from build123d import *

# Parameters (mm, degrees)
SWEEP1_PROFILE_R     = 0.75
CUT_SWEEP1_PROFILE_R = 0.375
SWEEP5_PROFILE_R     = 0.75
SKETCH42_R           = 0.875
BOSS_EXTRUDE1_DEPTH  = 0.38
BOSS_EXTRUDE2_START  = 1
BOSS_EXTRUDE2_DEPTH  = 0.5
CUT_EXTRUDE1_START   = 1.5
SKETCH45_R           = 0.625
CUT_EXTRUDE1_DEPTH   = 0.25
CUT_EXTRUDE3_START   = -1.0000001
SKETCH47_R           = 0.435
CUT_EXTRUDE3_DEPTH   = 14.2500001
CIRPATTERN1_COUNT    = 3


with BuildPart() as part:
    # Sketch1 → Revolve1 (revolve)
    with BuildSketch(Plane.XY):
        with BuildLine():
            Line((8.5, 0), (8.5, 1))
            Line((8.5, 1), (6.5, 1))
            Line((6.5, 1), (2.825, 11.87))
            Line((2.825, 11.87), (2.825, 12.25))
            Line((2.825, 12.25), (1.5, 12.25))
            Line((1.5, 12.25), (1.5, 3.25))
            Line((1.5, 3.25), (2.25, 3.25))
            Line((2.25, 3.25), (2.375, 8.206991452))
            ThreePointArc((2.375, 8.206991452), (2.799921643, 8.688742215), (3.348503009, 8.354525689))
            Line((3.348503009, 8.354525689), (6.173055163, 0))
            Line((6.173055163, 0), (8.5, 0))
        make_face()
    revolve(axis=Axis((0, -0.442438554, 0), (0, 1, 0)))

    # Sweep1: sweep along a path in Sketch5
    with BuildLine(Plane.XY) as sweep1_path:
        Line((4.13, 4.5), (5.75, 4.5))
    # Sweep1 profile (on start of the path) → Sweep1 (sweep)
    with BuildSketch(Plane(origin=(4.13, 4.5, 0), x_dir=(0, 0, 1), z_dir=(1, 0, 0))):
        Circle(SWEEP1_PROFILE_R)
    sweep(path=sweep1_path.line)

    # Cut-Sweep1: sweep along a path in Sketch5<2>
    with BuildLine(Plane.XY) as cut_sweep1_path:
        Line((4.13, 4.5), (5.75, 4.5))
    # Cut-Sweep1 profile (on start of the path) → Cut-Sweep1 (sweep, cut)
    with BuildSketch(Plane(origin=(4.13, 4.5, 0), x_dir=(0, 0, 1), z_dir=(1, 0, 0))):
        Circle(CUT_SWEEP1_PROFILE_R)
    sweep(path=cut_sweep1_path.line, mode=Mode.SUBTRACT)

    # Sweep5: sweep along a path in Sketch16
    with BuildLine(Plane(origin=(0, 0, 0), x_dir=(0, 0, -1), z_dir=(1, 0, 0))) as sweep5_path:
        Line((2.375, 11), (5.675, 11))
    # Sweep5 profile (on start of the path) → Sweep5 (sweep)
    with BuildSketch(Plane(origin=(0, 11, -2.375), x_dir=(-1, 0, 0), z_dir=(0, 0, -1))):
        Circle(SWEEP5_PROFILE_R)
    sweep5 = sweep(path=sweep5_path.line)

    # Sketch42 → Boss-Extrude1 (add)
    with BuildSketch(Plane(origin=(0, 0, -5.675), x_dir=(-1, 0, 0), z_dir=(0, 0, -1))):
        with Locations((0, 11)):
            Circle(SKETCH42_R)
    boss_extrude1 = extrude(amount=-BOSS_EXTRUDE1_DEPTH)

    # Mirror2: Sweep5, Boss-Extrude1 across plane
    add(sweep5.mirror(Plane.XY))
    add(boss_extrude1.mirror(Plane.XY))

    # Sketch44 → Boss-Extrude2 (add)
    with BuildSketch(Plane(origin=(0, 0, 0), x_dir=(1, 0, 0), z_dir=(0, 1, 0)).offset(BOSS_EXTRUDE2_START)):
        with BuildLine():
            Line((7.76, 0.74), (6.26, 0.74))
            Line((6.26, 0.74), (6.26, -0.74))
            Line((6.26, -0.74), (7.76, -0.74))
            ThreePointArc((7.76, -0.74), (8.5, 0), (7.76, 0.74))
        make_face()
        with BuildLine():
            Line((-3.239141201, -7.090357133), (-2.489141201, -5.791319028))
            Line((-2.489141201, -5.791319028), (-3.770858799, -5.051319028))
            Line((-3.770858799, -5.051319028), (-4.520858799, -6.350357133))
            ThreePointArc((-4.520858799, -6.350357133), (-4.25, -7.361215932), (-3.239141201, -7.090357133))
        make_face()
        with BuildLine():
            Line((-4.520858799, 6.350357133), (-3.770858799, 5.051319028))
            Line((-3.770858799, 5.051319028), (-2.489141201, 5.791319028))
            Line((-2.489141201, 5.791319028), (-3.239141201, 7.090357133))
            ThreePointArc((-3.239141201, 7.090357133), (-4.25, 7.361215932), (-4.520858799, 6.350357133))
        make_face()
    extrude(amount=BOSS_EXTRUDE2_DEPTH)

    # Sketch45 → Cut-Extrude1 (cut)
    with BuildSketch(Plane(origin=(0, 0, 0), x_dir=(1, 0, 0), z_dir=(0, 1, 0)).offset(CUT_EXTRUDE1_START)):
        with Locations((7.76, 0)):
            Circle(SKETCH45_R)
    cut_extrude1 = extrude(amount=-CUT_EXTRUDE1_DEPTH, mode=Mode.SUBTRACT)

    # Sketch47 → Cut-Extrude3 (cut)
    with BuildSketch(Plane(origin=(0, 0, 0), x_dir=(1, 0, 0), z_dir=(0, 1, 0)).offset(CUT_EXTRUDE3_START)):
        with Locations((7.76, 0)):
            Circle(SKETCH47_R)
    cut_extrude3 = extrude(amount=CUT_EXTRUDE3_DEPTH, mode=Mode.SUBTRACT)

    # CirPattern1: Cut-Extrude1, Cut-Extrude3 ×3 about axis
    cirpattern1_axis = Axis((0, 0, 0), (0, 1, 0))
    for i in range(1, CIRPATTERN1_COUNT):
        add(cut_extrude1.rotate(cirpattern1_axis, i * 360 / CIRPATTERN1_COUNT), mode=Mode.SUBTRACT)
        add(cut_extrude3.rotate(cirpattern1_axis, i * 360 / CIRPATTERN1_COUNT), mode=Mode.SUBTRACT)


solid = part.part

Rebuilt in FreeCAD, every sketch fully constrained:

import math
import FreeCAD as App
import Part
import Sketcher
Q = App.Units.Quantity

doc = App.newDocument("Part")
body = doc.addObject("PartDesign::Body", "Body")

# Sketch on XY plane
sketch1 = body.newObject("Sketcher::SketchObject", "Sketch")
sketch1.AttachmentSupport = (doc.getObject("XY_Plane"), [""])
sketch1.MapMode = "FlatFace"
sketch1.addGeometry(Part.LineSegment(App.Vector(8.5, 0, 0), App.Vector(8.5, 1, 0)), False)
sketch1.addGeometry(Part.LineSegment(App.Vector(8.5, 1, 0), App.Vector(6.5, 1, 0)), False)
sketch1.addGeometry(Part.LineSegment(App.Vector(6.5, 1, 0), App.Vector(2.83, 11.87, 0)), False)
sketch1.addGeometry(Part.LineSegment(App.Vector(2.83, 11.87, 0), App.Vector(2.83, 12.25, 0)), False)
sketch1.addGeometry(Part.LineSegment(App.Vector(2.83, 12.25, 0), App.Vector(1.5, 12.25, 0)), False)
sketch1.addGeometry(Part.LineSegment(App.Vector(1.5, 12.25, 0), App.Vector(1.5, 3.25, 0)), False)
sketch1.addGeometry(Part.LineSegment(App.Vector(1.5, 3.25, 0), App.Vector(2.25, 3.25, 0)), False)
sketch1.addGeometry(Part.LineSegment(App.Vector(2.25, 3.25, 0), App.Vector(2.38, 8.21, 0)), False)
sketch1.addGeometry(Part.ArcOfCircle(Part.Circle(App.Vector(2.87, 8.19, 0), App.Vector(0, 0, 1), 0.5), math.radians(19), math.radians(179)), False)
sketch1.addGeometry(Part.LineSegment(App.Vector(3.35, 8.35, 0), App.Vector(6.17, 0, 0)), False)
sketch1.addGeometry(Part.LineSegment(App.Vector(6.17, 0, 0), App.Vector(8.5, 0, 0)), False)
sketch1.addConstraint(Sketcher.Constraint("Coincident", 0, 2, 1, 1))
sketch1.addConstraint(Sketcher.Constraint("Coincident", 1, 2, 2, 1))
sketch1.addConstraint(Sketcher.Constraint("Coincident", 2, 2, 3, 1))
sketch1.addConstraint(Sketcher.Constraint("Coincident", 3, 2, 4, 1))
sketch1.addConstraint(Sketcher.Constraint("Coincident", 4, 2, 5, 1))
sketch1.addConstraint(Sketcher.Constraint("Coincident", 5, 2, 6, 1))
sketch1.addConstraint(Sketcher.Constraint("Coincident", 6, 2, 7, 1))
sketch1.addConstraint(Sketcher.Constraint("Tangent", 7, 2, 8, 2))
sketch1.addConstraint(Sketcher.Constraint("Tangent", 8, 1, 9, 1))
sketch1.addConstraint(Sketcher.Constraint("Coincident", 9, 2, 10, 1))
sketch1.addConstraint(Sketcher.Constraint("Coincident", 10, 2, 0, 1))
sketch1.addConstraint(Sketcher.Constraint("Vertical", 0))
sketch1.addConstraint(Sketcher.Constraint("Horizontal", 1))
sketch1.addConstraint(Sketcher.Constraint("Vertical", 3))
sketch1.addConstraint(Sketcher.Constraint("Horizontal", 4))
sketch1.addConstraint(Sketcher.Constraint("Vertical", 5))
sketch1.addConstraint(Sketcher.Constraint("Horizontal", 6))
sketch1.addConstraint(Sketcher.Constraint("Horizontal", 10))
sketch1.addConstraint(Sketcher.Constraint("PointOnObject", 9, 2, -1))
sketch1.addConstraint(Sketcher.Constraint("Parallel", 2, 9))
sketch1.addConstraint(Sketcher.Constraint("Radius", 8, Q("0.5 mm")))
sketch1.addConstraint(Sketcher.Constraint("DistanceX", 1, 2, 1, 1, Q("2 mm")))
sketch1.addConstraint(Sketcher.Constraint("DistanceY", 0, 1, 0, 2, Q("1 mm")))
sketch1.addConstraint(Sketcher.Constraint("DistanceY", 5, 2, 5, 1, Q("9 mm")))
sketch1.addConstraint(Sketcher.Constraint("DistanceX", 4, 2, 1, 2, Q("5 mm")))
sketch1.addConstraint(Sketcher.Constraint("DistanceX", 6, 1, 6, 2, Q("0.75 mm")))
sketch1.addConstraint(Sketcher.Constraint("DistanceY", 3, 1, 3, 2, Q("0.38 mm")))
sketch1.addConstraint(Sketcher.Constraint("DistanceX", -1, 1, 0, 2, Q("8.5 mm")))
sketch1.addConstraint(Sketcher.Constraint("DistanceX", 4, 2, 4, 1, Q("1.325 mm")))
sketch1.addConstraint(Sketcher.Constraint("DistanceY", -1, 1, 2, 2, Q("11.87 mm")))
sketch1.addConstraint(Sketcher.Constraint("DistanceX", 7, 2, 2, 2, Q("0.45 mm")))
sketch1.addConstraint(Sketcher.Constraint("Distance", 9, Q("8.819081 mm")))
revolution = body.newObject("PartDesign::Revolution", "Revolution")
revolution.Profile = sketch1
revolution.ReferenceAxis = (sketch1, ["V_Axis"])
revolution.Angle = 360

# Sketch on YZ plane
sketch2 = body.newObject("Sketcher::SketchObject", "Sketch001")
sketch2.AttachmentSupport = (doc.getObject("YZ_Plane"), [""])
sketch2.MapMode = "FlatFace"
sketch2.AttachmentOffset = App.Placement(App.Vector(0, 0, 4.13), App.Rotation())
sketch2.addGeometry(Part.Circle(App.Vector(4.5, 0, 0), App.Vector(0, 0, 1), 0.8), False)
sketch2.addConstraint(Sketcher.Constraint("PointOnObject", 0, 3, -1))
sketch2.addConstraint(Sketcher.Constraint("Diameter", 0, Q("1.5 mm")))
sketch2.addConstraint(Sketcher.Constraint("DistanceX", -1, 1, 0, 3, Q("4.5 mm")))

# Sketch on XY plane
sketch3 = body.newObject("Sketcher::SketchObject", "Sketch002")
sketch3.AttachmentSupport = (doc.getObject("XY_Plane"), [""])
sketch3.MapMode = "FlatFace"
sketch3.addGeometry(Part.LineSegment(App.Vector(4.1, 4.5, 0), App.Vector(5.8, 4.5, 0)), False)
sketch3.addConstraint(Sketcher.Constraint("Horizontal", 0))
sketch3.addConstraint(Sketcher.Constraint("DistanceX", 0, 1, 0, 2, Q("1.62 mm")))
sketch3.addConstraint(Sketcher.Constraint("DistanceY", -1, 1, 0, 1, Q("4.5 mm")))
sketch3.addConstraint(Sketcher.Constraint("DistanceX", -1, 1, 0, 1, Q("4.13 mm")))
doc.recompute()

additivepipe = body.newObject("PartDesign::AdditivePipe", "AdditivePipe")
additivepipe.Profile = sketch2
additivepipe.Spine = (sketch3, ["Edge1"])

# Sketch on YZ plane
sketch4 = body.newObject("Sketcher::SketchObject", "Sketch003")
sketch4.AttachmentSupport = (doc.getObject("YZ_Plane"), [""])
sketch4.MapMode = "FlatFace"
sketch4.AttachmentOffset = App.Placement(App.Vector(0, 0, 4.13), App.Rotation())
sketch4.addGeometry(Part.Circle(App.Vector(4.5, 0, 0), App.Vector(0, 0, 1), 0.38), False)
sketch4.addConstraint(Sketcher.Constraint("PointOnObject", 0, 3, -1))
sketch4.addConstraint(Sketcher.Constraint("Diameter", 0, Q("0.75 mm")))
sketch4.addConstraint(Sketcher.Constraint("DistanceX", -1, 1, 0, 3, Q("4.5 mm")))

# Sketch on XY plane
sketch5 = body.newObject("Sketcher::SketchObject", "Sketch004")
sketch5.AttachmentSupport = (doc.getObject("XY_Plane"), [""])
sketch5.MapMode = "FlatFace"
sketch5.addGeometry(Part.LineSegment(App.Vector(4.1, 4.5, 0), App.Vector(5.8, 4.5, 0)), False)
sketch5.addConstraint(Sketcher.Constraint("Horizontal", 0))
sketch5.addConstraint(Sketcher.Constraint("DistanceX", 0, 1, 0, 2, Q("1.62 mm")))
sketch5.addConstraint(Sketcher.Constraint("DistanceY", -1, 1, 0, 1, Q("4.5 mm")))
sketch5.addConstraint(Sketcher.Constraint("DistanceX", -1, 1, 0, 1, Q("4.13 mm")))
doc.recompute()

subtractivepipe = body.newObject("PartDesign::SubtractivePipe", "SubtractivePipe")
subtractivepipe.Profile = sketch4
subtractivepipe.Spine = (sketch5, ["Edge1"])

# Sketch on XY plane
sketch6 = body.newObject("Sketcher::SketchObject", "Sketch005")
sketch6.AttachmentSupport = (doc.getObject("XY_Plane"), [""])
sketch6.MapMode = "FlatFace"
sketch6.AttachmentOffset = App.Placement(App.Vector(0, 0, -2.375), App.Rotation())
sketch6.addGeometry(Part.Circle(App.Vector(0, 11, 0), App.Vector(0, 0, 1), 0.8), False)
sketch6.addConstraint(Sketcher.Constraint("PointOnObject", 0, 3, -2))
sketch6.addConstraint(Sketcher.Constraint("Diameter", 0, Q("1.5 mm")))
sketch6.addConstraint(Sketcher.Constraint("DistanceY", -1, 1, 0, 3, Q("11 mm")))

# Sketch on XZ plane
sketch7 = body.newObject("Sketcher::SketchObject", "Sketch006")
sketch7.AttachmentSupport = (doc.getObject("XZ_Plane"), [""])
sketch7.MapMode = "FlatFace"
sketch7.AttachmentOffset = App.Placement(App.Vector(0, 0, -11), App.Rotation())
sketch7.addGeometry(Part.LineSegment(App.Vector(0, -2.4, 0), App.Vector(0, -5.7, 0)), False)
sketch7.addConstraint(Sketcher.Constraint("Vertical", 0))
sketch7.addConstraint(Sketcher.Constraint("PointOnObject", 0, 1, -2))
sketch7.addConstraint(Sketcher.Constraint("DistanceY", 0, 2, 0, 1, Q("3.3 mm")))
sketch7.addConstraint(Sketcher.Constraint("DistanceY", 0, 1, -1, 1, Q("2.375 mm")))
doc.recompute()

additivepipe2 = body.newObject("PartDesign::AdditivePipe", "AdditivePipe001")
additivepipe2.Profile = sketch6
additivepipe2.Spine = (sketch7, ["Edge1"])

# Sketch on XY plane
sketch8 = body.newObject("Sketcher::SketchObject", "Sketch007")
sketch8.AttachmentSupport = (doc.getObject("XY_Plane"), [""])
sketch8.MapMode = "FlatFace"
sketch8.AttachmentOffset = App.Placement(App.Vector(0, 0, -5.675), App.Rotation())
sketch8.addGeometry(Part.Circle(App.Vector(0, 11, 0), App.Vector(0, 0, 1), 0.9), False)
sketch8.addConstraint(Sketcher.Constraint("PointOnObject", 0, 3, -2))
sketch8.addConstraint(Sketcher.Constraint("Diameter", 0, Q("1.75 mm")))
sketch8.addConstraint(Sketcher.Constraint("DistanceY", -1, 1, 0, 3, Q("11 mm")))
pad1 = body.newObject("PartDesign::Pad", "Pad")
pad1.Profile = sketch8
pad1.Length = 0.38
doc.recompute()

mirrored = body.newObject("PartDesign::Mirrored", "Mirrored")
mirrored.Originals = [additivepipe2, pad1]
mirrored.MirrorPlane = (doc.getObject("XY_Plane"), [""])
body.Tip = mirrored

# Sketch on XZ plane
sketch9 = body.newObject("Sketcher::SketchObject", "Sketch008")
sketch9.AttachmentSupport = (doc.getObject("XZ_Plane"), [""])
sketch9.MapMode = "FlatFace"
sketch9.AttachmentOffset = App.Placement(App.Vector(0, 0, -1), App.Rotation())
sketch9.addGeometry(Part.LineSegment(App.Vector(7.8, -0.7, 0), App.Vector(6.3, -0.7, 0)), False)
sketch9.addGeometry(Part.LineSegment(App.Vector(6.3, -0.7, 0), App.Vector(6.3, 0.7, 0)), False)
sketch9.addGeometry(Part.LineSegment(App.Vector(6.3, 0.7, 0), App.Vector(7.8, 0.7, 0)), False)
sketch9.addGeometry(Part.ArcOfCircle(Part.Circle(App.Vector(7.8, 0, 0), App.Vector(0, 0, 1), 0.7), math.radians(-90), math.radians(90)), False)
sketch9.addGeometry(Part.LineSegment(App.Vector(-3.2, 7.1, 0), App.Vector(-2.5, 5.8, 0)), False)
sketch9.addGeometry(Part.LineSegment(App.Vector(-2.5, 5.8, 0), App.Vector(-3.8, 5.1, 0)), False)
sketch9.addGeometry(Part.LineSegment(App.Vector(-3.8, 5.1, 0), App.Vector(-4.5, 6.4, 0)), False)
sketch9.addGeometry(Part.ArcOfCircle(Part.Circle(App.Vector(-3.9, 6.7, 0), App.Vector(0, 0, 1), 0.7), math.radians(30), math.radians(210)), False)
sketch9.addGeometry(Part.LineSegment(App.Vector(-4.5, -6.4, 0), App.Vector(-3.8, -5.1, 0)), False)
sketch9.addGeometry(Part.LineSegment(App.Vector(-3.8, -5.1, 0), App.Vector(-2.5, -5.8, 0)), False)
sketch9.addGeometry(Part.LineSegment(App.Vector(-2.5, -5.8, 0), App.Vector(-3.2, -7.1, 0)), False)
sketch9.addGeometry(Part.ArcOfCircle(Part.Circle(App.Vector(-3.9, -6.7, 0), App.Vector(0, 0, 1), 0.7), math.radians(150), math.radians(330)), False)
sketch9.addConstraint(Sketcher.Constraint("Coincident", 0, 2, 1, 1))
sketch9.addConstraint(Sketcher.Constraint("Coincident", 1, 2, 2, 1))
sketch9.addConstraint(Sketcher.Constraint("Tangent", 2, 2, 3, 2))
sketch9.addConstraint(Sketcher.Constraint("Tangent", 3, 1, 0, 1))
sketch9.addConstraint(Sketcher.Constraint("Coincident", 4, 2, 5, 1))
sketch9.addConstraint(Sketcher.Constraint("Coincident", 5, 2, 6, 1))
sketch9.addConstraint(Sketcher.Constraint("Tangent", 6, 2, 7, 2))
sketch9.addConstraint(Sketcher.Constraint("Tangent", 7, 1, 4, 1))
sketch9.addConstraint(Sketcher.Constraint("Coincident", 8, 2, 9, 1))
sketch9.addConstraint(Sketcher.Constraint("Coincident", 9, 2, 10, 1))
sketch9.addConstraint(Sketcher.Constraint("Tangent", 10, 2, 11, 2))
sketch9.addConstraint(Sketcher.Constraint("Tangent", 11, 1, 8, 1))
sketch9.addConstraint(Sketcher.Constraint("Horizontal", 0))
sketch9.addConstraint(Sketcher.Constraint("Vertical", 1))
sketch9.addConstraint(Sketcher.Constraint("Horizontal", 2))
sketch9.addConstraint(Sketcher.Constraint("Equal", 3, 7))
sketch9.addConstraint(Sketcher.Constraint("Equal", 7, 11))
sketch9.addConstraint(Sketcher.Constraint("Symmetric", 7, 3, 11, 3, -1))
sketch9.addConstraint(Sketcher.Constraint("Symmetric", 5, 2, 8, 2, -1))
sketch9.addConstraint(Sketcher.Constraint("Symmetric", 4, 2, 9, 2, -1))
sketch9.addConstraint(Sketcher.Constraint("PointOnObject", 3, 3, -1))
sketch9.addConstraint(Sketcher.Constraint("Perpendicular", 4, 5))
sketch9.addConstraint(Sketcher.Constraint("Perpendicular", 5, 6))
sketch9.addConstraint(Sketcher.Constraint("Angle", 4, Q("-60 deg")))
sketch9.addConstraint(Sketcher.Constraint("Radius", 3, Q("0.74 mm")))
sketch9.addConstraint(Sketcher.Constraint("DistanceX", 0, 2, 0, 1, Q("1.5 mm")))
sketch9.addConstraint(Sketcher.Constraint("Distance", 4, Q("1.5 mm")))
sketch9.addConstraint(Sketcher.Constraint("DistanceX", -1, 1, 3, 3, Q("7.76 mm")))
sketch9.addConstraint(Sketcher.Constraint("DistanceX", 7, 3, -1, 1, Q("3.88 mm")))
sketch9.addConstraint(Sketcher.Constraint("DistanceY", -1, 1, 4, 2, Q("5.791319 mm")))
pad2 = body.newObject("PartDesign::Pad", "Pad001")
pad2.Profile = sketch9
pad2.Length = 0.5
pad2.Reversed = True

# Sketch on XZ plane
sketch10 = body.newObject("Sketcher::SketchObject", "Sketch009")
sketch10.AttachmentSupport = (doc.getObject("XZ_Plane"), [""])
sketch10.MapMode = "FlatFace"
sketch10.AttachmentOffset = App.Placement(App.Vector(0, 0, -1.5), App.Rotation())
sketch10.addGeometry(Part.Circle(App.Vector(7.8, 0, 0), App.Vector(0, 0, 1), 0.6), False)
sketch10.addConstraint(Sketcher.Constraint("PointOnObject", 0, 3, -1))
sketch10.addConstraint(Sketcher.Constraint("Diameter", 0, Q("1.25 mm")))
sketch10.addConstraint(Sketcher.Constraint("DistanceX", -1, 1, 0, 3, Q("7.76 mm")))
pocket1 = body.newObject("PartDesign::Pocket", "Pocket")
pocket1.Profile = sketch10
pocket1.Length = 0.25
pocket1.Reversed = True

# Sketch on XZ plane
sketch11 = body.newObject("Sketcher::SketchObject", "Sketch010")
sketch11.AttachmentSupport = (doc.getObject("XZ_Plane"), [""])
sketch11.MapMode = "FlatFace"
sketch11.AttachmentOffset = App.Placement(App.Vector(0, 0, 1), App.Rotation())
sketch11.addGeometry(Part.Circle(App.Vector(7.76, 0, 0), App.Vector(0, 0, 1), 0.43), False)
sketch11.addConstraint(Sketcher.Constraint("PointOnObject", 0, 3, -1))
sketch11.addConstraint(Sketcher.Constraint("Diameter", 0, Q("0.87 mm")))
sketch11.addConstraint(Sketcher.Constraint("DistanceX", -1, 1, 0, 3, Q("7.76 mm")))
pocket2 = body.newObject("PartDesign::Pocket", "Pocket001")
pocket2.Profile = sketch11
pocket2.Length = 14.25
doc.recompute()

polarpattern = body.newObject("PartDesign::PolarPattern", "PolarPattern")
polarpattern.Originals = [pocket1, pocket2]
polarpattern.Axis = (doc.getObject("Y_Axis"), [""])
polarpattern.Angle = 360
polarpattern.Occurrences = 3
body.Tip = polarpattern

doc.recompute()
